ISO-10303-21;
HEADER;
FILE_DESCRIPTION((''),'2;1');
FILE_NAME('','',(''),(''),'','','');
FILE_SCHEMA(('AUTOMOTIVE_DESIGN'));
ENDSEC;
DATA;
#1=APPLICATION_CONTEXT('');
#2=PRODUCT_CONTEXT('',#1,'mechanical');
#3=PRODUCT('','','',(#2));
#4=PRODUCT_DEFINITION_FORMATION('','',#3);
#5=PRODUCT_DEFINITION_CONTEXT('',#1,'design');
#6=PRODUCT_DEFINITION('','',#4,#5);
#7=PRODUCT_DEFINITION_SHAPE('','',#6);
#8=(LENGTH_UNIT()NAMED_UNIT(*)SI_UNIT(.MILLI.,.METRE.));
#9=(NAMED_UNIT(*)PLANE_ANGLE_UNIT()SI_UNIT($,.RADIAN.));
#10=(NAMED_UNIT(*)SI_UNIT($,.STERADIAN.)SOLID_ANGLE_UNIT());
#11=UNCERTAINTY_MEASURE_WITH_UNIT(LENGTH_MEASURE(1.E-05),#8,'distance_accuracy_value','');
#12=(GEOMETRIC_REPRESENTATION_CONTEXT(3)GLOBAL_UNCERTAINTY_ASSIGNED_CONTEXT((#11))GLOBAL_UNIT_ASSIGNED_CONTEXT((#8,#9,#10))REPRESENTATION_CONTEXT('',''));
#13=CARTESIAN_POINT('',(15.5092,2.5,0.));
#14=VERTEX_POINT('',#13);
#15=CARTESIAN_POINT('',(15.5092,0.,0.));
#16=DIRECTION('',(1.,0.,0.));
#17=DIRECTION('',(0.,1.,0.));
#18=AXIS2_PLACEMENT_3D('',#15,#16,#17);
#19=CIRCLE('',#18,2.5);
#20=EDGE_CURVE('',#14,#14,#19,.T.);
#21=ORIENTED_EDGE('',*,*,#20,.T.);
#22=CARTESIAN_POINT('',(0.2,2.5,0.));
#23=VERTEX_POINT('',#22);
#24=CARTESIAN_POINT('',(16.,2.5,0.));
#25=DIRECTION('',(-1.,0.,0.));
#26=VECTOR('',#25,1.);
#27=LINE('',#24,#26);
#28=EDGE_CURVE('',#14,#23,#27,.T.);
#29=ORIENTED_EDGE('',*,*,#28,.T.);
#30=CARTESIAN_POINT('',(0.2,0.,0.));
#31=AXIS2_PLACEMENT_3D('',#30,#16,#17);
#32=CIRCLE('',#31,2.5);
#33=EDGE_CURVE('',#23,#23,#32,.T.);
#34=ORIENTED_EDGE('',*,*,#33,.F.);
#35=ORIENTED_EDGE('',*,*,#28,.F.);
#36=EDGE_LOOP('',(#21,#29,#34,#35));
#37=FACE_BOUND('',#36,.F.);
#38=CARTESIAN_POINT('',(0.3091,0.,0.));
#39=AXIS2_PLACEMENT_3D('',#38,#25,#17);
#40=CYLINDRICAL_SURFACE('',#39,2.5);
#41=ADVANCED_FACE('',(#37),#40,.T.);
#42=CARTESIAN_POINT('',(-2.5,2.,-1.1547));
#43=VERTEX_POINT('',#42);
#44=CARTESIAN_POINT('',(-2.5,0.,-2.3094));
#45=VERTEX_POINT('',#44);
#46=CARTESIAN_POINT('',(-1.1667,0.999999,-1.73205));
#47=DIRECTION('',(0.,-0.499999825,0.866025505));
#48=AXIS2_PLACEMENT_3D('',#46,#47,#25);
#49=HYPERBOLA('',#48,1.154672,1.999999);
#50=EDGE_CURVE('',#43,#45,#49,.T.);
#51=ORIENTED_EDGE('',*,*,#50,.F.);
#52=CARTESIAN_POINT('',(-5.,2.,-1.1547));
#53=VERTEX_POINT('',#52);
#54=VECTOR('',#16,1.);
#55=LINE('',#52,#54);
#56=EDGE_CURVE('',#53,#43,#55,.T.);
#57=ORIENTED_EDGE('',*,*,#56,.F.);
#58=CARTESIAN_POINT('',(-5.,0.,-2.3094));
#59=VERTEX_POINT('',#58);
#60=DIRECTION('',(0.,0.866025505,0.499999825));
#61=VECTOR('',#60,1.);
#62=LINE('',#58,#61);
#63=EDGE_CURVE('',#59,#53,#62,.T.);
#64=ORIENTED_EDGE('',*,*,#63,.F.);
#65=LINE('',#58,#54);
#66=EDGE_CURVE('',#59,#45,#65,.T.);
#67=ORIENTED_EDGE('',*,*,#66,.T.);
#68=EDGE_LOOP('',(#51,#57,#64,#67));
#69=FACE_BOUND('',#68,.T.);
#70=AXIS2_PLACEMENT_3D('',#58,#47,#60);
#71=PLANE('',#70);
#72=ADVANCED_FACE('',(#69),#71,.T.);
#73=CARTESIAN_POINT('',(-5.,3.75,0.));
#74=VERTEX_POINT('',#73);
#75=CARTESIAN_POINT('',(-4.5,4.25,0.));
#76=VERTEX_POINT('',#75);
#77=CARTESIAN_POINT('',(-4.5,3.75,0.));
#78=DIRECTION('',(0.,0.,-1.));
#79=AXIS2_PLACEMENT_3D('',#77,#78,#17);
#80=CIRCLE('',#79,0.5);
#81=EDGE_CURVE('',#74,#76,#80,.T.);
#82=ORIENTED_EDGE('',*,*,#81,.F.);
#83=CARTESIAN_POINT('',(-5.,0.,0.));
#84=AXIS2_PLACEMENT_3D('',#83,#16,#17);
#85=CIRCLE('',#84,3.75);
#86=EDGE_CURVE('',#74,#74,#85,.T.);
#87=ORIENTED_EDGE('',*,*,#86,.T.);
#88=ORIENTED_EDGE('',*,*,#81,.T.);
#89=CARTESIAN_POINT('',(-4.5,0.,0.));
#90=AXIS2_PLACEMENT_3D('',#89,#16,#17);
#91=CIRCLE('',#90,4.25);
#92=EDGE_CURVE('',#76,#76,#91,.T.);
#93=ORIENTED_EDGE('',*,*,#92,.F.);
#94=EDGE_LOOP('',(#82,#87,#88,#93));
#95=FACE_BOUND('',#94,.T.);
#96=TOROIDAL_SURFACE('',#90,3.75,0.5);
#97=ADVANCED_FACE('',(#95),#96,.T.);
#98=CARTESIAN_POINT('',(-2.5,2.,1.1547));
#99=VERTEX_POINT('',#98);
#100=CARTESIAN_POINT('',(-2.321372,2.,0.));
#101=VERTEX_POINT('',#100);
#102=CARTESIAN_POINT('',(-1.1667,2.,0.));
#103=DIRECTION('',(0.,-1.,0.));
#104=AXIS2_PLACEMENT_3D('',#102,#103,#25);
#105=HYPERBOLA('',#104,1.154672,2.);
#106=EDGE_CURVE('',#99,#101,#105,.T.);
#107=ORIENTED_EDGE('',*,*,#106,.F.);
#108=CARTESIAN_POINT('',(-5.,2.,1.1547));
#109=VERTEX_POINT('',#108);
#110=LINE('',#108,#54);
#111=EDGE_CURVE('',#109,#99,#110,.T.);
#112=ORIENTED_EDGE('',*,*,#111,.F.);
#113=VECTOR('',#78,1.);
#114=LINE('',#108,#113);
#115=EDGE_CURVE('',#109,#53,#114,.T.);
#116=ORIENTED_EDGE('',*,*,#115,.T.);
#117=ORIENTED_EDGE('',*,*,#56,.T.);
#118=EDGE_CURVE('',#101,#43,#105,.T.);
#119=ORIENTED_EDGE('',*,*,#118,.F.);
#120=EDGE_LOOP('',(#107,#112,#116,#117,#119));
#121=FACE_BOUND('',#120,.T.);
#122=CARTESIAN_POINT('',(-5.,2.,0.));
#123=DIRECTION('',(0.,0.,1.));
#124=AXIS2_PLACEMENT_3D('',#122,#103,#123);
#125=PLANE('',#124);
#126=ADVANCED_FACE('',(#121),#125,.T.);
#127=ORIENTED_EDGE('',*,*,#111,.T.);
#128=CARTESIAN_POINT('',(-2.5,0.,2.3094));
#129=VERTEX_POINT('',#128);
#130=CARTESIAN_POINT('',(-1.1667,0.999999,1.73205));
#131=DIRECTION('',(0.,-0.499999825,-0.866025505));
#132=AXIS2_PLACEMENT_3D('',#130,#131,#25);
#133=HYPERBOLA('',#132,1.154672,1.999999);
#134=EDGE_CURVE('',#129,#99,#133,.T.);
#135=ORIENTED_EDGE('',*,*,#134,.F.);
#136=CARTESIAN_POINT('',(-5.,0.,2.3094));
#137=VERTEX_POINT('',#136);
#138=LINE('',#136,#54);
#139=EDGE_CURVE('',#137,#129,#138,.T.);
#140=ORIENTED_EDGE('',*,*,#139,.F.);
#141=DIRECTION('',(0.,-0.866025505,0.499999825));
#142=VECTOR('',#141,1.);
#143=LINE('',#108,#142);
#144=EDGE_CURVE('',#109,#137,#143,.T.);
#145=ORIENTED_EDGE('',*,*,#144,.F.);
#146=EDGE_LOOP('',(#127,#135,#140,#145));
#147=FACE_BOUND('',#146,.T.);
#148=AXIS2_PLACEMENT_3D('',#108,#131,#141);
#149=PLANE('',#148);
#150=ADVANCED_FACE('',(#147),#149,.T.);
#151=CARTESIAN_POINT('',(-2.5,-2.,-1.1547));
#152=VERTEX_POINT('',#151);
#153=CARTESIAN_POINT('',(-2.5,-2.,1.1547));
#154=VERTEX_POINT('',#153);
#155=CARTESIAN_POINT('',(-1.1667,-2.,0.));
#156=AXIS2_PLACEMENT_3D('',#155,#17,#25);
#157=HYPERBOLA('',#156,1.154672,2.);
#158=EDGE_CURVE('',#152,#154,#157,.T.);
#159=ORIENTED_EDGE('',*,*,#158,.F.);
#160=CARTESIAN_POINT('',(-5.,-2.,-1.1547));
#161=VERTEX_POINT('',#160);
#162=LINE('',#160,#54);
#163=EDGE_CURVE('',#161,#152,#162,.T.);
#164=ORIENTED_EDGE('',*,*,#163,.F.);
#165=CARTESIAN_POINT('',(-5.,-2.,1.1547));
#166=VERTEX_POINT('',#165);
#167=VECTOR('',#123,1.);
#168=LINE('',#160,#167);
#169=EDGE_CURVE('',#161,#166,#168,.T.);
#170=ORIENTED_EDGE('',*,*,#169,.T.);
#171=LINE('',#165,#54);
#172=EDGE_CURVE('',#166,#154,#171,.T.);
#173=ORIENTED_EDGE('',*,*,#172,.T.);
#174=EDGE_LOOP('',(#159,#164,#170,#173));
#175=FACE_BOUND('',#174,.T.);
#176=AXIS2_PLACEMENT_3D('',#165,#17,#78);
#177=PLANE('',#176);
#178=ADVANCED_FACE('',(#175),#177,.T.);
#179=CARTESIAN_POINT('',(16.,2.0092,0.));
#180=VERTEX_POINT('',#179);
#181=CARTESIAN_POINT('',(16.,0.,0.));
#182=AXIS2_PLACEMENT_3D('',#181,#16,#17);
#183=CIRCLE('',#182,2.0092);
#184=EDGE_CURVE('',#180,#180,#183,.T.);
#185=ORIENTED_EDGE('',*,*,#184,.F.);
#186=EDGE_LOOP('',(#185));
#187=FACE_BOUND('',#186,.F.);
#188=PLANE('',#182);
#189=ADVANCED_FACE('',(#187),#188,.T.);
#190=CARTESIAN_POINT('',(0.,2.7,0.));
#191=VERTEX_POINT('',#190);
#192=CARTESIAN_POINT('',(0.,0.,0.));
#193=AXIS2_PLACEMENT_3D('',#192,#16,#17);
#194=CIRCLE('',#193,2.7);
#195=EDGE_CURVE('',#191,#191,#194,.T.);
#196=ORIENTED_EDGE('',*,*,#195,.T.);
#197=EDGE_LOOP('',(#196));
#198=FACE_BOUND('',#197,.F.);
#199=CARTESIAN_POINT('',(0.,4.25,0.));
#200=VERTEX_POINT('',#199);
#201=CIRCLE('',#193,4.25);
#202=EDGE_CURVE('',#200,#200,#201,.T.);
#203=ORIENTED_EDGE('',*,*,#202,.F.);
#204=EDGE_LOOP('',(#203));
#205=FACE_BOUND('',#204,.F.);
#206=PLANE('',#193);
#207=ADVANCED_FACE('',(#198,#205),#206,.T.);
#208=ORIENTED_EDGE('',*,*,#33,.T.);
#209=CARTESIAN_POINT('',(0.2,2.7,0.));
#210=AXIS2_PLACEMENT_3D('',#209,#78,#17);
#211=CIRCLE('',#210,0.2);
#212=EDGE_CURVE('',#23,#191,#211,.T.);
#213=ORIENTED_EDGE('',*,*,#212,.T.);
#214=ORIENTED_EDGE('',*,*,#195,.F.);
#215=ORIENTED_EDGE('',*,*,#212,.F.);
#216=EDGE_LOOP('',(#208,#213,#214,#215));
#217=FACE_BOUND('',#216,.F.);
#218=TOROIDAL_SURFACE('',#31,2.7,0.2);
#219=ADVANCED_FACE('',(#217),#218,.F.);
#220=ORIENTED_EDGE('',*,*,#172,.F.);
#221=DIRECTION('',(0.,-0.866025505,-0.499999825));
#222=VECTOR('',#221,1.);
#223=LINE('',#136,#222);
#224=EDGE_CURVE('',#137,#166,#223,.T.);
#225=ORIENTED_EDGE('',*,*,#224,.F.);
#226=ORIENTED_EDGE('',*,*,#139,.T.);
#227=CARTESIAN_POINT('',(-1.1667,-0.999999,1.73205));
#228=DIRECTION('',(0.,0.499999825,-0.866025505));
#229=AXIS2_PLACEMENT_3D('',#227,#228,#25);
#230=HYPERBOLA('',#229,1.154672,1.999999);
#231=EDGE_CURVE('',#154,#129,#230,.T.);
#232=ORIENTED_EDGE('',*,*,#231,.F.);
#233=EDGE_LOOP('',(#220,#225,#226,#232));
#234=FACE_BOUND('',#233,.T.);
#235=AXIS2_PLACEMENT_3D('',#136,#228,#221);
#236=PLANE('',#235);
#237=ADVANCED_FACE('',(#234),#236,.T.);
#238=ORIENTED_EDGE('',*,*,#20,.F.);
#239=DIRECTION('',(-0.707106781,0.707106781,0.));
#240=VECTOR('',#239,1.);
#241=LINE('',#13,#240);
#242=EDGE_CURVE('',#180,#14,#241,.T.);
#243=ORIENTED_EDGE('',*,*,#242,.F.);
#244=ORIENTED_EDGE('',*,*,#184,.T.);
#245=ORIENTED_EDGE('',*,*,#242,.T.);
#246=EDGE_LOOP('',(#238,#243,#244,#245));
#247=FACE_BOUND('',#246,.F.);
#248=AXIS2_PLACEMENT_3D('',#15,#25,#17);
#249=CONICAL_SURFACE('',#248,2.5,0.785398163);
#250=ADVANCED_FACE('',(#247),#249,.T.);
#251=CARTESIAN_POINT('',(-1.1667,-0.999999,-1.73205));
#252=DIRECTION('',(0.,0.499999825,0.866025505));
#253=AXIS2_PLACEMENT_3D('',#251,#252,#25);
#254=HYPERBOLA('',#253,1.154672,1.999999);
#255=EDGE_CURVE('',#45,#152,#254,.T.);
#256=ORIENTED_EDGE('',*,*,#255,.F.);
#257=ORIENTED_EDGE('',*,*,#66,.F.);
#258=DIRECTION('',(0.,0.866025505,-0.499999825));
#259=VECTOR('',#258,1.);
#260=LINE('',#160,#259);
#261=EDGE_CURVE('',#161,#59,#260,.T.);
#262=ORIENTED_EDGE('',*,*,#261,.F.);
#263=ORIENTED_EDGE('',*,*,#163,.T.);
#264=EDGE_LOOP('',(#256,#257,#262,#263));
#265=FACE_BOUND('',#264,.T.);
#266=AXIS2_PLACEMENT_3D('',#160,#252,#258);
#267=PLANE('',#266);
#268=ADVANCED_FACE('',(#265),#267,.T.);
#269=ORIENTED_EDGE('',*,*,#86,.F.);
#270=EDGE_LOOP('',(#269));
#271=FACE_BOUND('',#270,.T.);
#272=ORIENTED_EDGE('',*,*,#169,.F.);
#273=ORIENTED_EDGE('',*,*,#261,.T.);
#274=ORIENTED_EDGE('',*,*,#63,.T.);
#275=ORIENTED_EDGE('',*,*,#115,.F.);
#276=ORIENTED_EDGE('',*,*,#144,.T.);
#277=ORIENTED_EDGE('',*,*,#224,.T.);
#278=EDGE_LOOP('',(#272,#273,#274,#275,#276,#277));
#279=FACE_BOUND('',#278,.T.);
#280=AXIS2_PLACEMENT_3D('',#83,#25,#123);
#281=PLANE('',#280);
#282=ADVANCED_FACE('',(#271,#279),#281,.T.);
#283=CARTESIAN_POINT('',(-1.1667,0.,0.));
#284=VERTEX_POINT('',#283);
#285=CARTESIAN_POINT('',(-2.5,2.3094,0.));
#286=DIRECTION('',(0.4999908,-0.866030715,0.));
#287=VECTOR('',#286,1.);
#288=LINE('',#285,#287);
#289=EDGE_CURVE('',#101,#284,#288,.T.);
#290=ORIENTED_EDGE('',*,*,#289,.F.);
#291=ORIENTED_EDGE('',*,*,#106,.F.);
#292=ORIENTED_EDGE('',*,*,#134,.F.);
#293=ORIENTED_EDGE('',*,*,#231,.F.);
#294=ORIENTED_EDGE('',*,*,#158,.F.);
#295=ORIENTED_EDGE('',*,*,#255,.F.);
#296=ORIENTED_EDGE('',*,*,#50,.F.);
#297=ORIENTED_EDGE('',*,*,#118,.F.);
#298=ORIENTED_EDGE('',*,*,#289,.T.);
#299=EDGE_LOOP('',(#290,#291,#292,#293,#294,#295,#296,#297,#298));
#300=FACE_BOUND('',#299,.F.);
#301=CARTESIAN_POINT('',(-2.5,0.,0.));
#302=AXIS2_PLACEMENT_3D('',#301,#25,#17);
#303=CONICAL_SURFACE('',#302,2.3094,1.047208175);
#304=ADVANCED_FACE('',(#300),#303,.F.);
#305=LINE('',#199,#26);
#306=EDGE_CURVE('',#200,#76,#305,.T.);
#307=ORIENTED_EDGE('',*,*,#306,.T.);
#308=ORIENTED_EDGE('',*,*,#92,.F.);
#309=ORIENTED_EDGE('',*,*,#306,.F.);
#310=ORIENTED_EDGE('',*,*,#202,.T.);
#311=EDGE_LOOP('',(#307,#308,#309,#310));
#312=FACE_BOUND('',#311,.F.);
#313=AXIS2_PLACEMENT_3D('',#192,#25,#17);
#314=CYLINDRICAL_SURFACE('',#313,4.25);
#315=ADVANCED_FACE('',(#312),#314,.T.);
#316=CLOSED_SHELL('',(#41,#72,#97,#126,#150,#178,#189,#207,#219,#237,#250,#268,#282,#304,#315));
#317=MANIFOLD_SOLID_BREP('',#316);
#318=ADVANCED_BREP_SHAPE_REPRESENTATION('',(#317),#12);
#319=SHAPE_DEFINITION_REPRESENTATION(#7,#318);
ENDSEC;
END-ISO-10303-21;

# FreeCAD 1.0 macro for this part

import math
import FreeCAD as App
import Part
import Sketcher
from FreeCAD import Vector
Q = App.Units.Quantity


def edges_at(feature, points):
    """Names of the edges that pass closest to the given points."""
    edges = feature.Shape.Edges
    near = lambda p: min(range(len(edges)), key=lambda i: edges[i].distToShape(Part.Vertex(*p))[0])
    return sorted({f"Edge{near(p) + 1}" for p in points})


def add_polygon(sketch, points):
    """Adds a closed chain of lines whose ends are joined by coincident constraints."""
    first, n = sketch.GeometryCount, len(points)
    for a, b in zip(points, points[1:] + points[:1]):
        sketch.addGeometry(Part.LineSegment(App.Vector(*a, 0), App.Vector(*b, 0)), False)
    for i in range(n):
        sketch.addConstraint(Sketcher.Constraint("Coincident", first + i, 2, first + (i + 1) % n, 1))

doc = App.newDocument("Part")
body = doc.addObject("PartDesign::Body", "Body")

sketch1 = body.newObject("Sketcher::SketchObject", "Sketch")
sketch1.AttachmentSupport = (doc.getObject("XY_Plane"), [""])
sketch1.MapMode = "FlatFace"
add_polygon(sketch1, [(-2.5, 2.3), (-1.2, 0), (16, 0), (16, 2.5), (0, 2.5), (0, 4.2), (-5, 4.2), (-5, 2.3)])
sketch1.addConstraint(Sketcher.Constraint("Horizontal", 1))
sketch1.addConstraint(Sketcher.Constraint("Vertical", 2))
sketch1.addConstraint(Sketcher.Constraint("Horizontal", 3))
sketch1.addConstraint(Sketcher.Constraint("Vertical", 4))
sketch1.addConstraint(Sketcher.Constraint("Horizontal", 5))
sketch1.addConstraint(Sketcher.Constraint("Vertical", 6))
sketch1.addConstraint(Sketcher.Constraint("Horizontal", 7))
sketch1.addConstraint(Sketcher.Constraint("PointOnObject", 0, 2, -1))
sketch1.addConstraint(Sketcher.Constraint("PointOnObject", 3, 2, -2))
sketch1.addConstraint(Sketcher.Constraint("Equal", 7, 2))
sketch1.addConstraint(Sketcher.Constraint("DistanceX", 3, 2, 3, 1, 16.0))
sketch1.addConstraint(Sketcher.Constraint("DistanceX", 5, 2, 5, 1, 5.0))
sketch1.addConstraint(Sketcher.Constraint("DistanceX", 7, 1, 7, 2, 2.5))
sketch1.addConstraint(Sketcher.Constraint("Angle", 0, Q("-60.0006 deg")))
sketch1.addConstraint(Sketcher.Constraint("DistanceY", 4, 1, 4, 2, 1.75))
sketch1.addConstraint(Sketcher.Constraint("DistanceX", 1, 1, 1, 2, 17.1667))
revolution = body.newObject("PartDesign::Revolution", "Revolution")
revolution.Profile = sketch1
revolution.ReferenceAxis = (sketch1, ["H_Axis"])
revolution.Angle = 360

sketch2 = body.newObject("Sketcher::SketchObject", "Sketch001")
sketch2.AttachmentSupport = (doc.getObject("YZ_Plane"), [""])
sketch2.MapMode = "FlatFace"
sketch2.AttachmentOffset = App.Placement(Vector(0, 0, -5), App.Rotation())
sketch2.addGeometry(Part.LineSegment(Vector(2, 1.2, 0), Vector(0, 2.3, 0)), False)
sketch2.addGeometry(Part.ArcOfCircle(Part.Circle(Vector(0, 0, 0), Vector(0, 0, 1), 2.3), math.radians(30), math.radians(90)), False)
sketch2.addGeometry(Part.ArcOfCircle(Part.Circle(Vector(0, 0, 0), Vector(0, 0, 1), 2.3), math.radians(90), math.radians(150)), False)
sketch2.addGeometry(Part.LineSegment(Vector(0, 2.3, 0), Vector(-2, 1.2, 0)), False)
sketch2.addGeometry(Part.ArcOfCircle(Part.Circle(Vector(0, 0, 0), Vector(0, 0, 1), 2.3), math.radians(-30), math.radians(30)), False)
sketch2.addGeometry(Part.LineSegment(Vector(2, -1.2, 0), Vector(2, 1.2, 0)), False)
sketch2.addGeometry(Part.LineSegment(Vector(-2, 1.2, 0), Vector(-2, -1.2, 0)), False)
sketch2.addGeometry(Part.ArcOfCircle(Part.Circle(Vector(0, 0, 0), Vector(0, 0, 1), 2.3), math.radians(150), math.radians(210)), False)
sketch2.addGeometry(Part.LineSegment(Vector(-2, -1.2, 0), Vector(0, -2.3, 0)), False)
sketch2.addGeometry(Part.ArcOfCircle(Part.Circle(Vector(0, 0, 0), Vector(0, 0, 1), 2.3), math.radians(-150), math.radians(-90)), False)
sketch2.addGeometry(Part.ArcOfCircle(Part.Circle(Vector(0, 0, 0), Vector(0, 0, 1), 2.3), math.radians(-90), math.radians(-30)), False)
sketch2.addGeometry(Part.LineSegment(Vector(0, -2.3, 0), Vector(2, -1.2, 0)), False)
sketch2.addConstraint(Sketcher.Constraint("Coincident", 0, 1, 1, 1))
sketch2.addConstraint(Sketcher.Constraint("Coincident", 1, 2, 0, 2))
sketch2.addConstraint(Sketcher.Constraint("Coincident", 2, 1, 3, 1))
sketch2.addConstraint(Sketcher.Constraint("Coincident", 3, 2, 2, 2))
sketch2.addConstraint(Sketcher.Constraint("Coincident", 4, 1, 5, 1))
sketch2.addConstraint(Sketcher.Constraint("Coincident", 5, 2, 4, 2))
sketch2.addConstraint(Sketcher.Constraint("Coincident", 6, 1, 7, 1))
sketch2.addConstraint(Sketcher.Constraint("Coincident", 7, 2, 6, 2))
sketch2.addConstraint(Sketcher.Constraint("Coincident", 8, 1, 9, 1))
sketch2.addConstraint(Sketcher.Constraint("Coincident", 9, 2, 8, 2))
sketch2.addConstraint(Sketcher.Constraint("Coincident", 10, 1, 11, 1))
sketch2.addConstraint(Sketcher.Constraint("Coincident", 11, 2, 10, 2))
sketch2.addConstraint(Sketcher.Constraint("Vertical", 5))
sketch2.addConstraint(Sketcher.Constraint("Vertical", 6))
sketch2.addConstraint(Sketcher.Constraint("Coincident", 1, 3, -1, 1))
sketch2.addConstraint(Sketcher.Constraint("Coincident", 2, 3, -1, 1))
sketch2.addConstraint(Sketcher.Constraint("Coincident", 4, 3, -1, 1))
sketch2.addConstraint(Sketcher.Constraint("Coincident", 7, 3, -1, 1))
sketch2.addConstraint(Sketcher.Constraint("Coincident", 9, 3, -1, 1))
sketch2.addConstraint(Sketcher.Constraint("Coincident", 10, 3, -1, 1))
sketch2.addConstraint(Sketcher.Constraint("Coincident", 2, 1, 1, 2))
sketch2.addConstraint(Sketcher.Constraint("Coincident", 5, 2, 0, 1))
sketch2.addConstraint(Sketcher.Constraint("Coincident", 6, 1, 3, 2))
sketch2.addConstraint(Sketcher.Constraint("Coincident", 8, 1, 7, 2))
sketch2.addConstraint(Sketcher.Constraint("Coincident", 10, 1, 9, 2))
sketch2.addConstraint(Sketcher.Constraint("PointOnObject", 1, 2, -2))
sketch2.addConstraint(Sketcher.Constraint("PointOnObject", 9, 2, -2))
sketch2.addConstraint(Sketcher.Constraint("Parallel", 0, 8))
sketch2.addConstraint(Sketcher.Constraint("Parallel", 3, 11))
sketch2.addConstraint(Sketcher.Constraint("Angle", 0, Q("150 deg")))
sketch2.addConstraint(Sketcher.Constraint("DistanceX", -1, 1, 0, 1, 2.0))
pad1 = body.newObject("PartDesign::Pad", "Pad")
pad1.Profile = sketch2
pad1.Length = 2.6786
doc.recompute()

fillet = body.newObject("PartDesign::Fillet", "Fillet")
fillet.Base = (pad1, edges_at(pad1, [(-5, -4.25, 0)]))
fillet.Radius = 0.5
doc.recompute()

chamfer = body.newObject("PartDesign::Chamfer", "Chamfer")
chamfer.Base = (fillet, edges_at(fillet, [(16, -2.5, 0)]))
chamfer.ChamferType = "Two distances"
chamfer.Size = 0.4908
chamfer.Size2 = 0.4908
doc.recompute()

fillet2 = body.newObject("PartDesign::Fillet", "Fillet001")
fillet2.Base = (chamfer, edges_at(chamfer, [(0, -2.5, 0)]))
fillet2.Radius = 0.2

doc.recompute()
